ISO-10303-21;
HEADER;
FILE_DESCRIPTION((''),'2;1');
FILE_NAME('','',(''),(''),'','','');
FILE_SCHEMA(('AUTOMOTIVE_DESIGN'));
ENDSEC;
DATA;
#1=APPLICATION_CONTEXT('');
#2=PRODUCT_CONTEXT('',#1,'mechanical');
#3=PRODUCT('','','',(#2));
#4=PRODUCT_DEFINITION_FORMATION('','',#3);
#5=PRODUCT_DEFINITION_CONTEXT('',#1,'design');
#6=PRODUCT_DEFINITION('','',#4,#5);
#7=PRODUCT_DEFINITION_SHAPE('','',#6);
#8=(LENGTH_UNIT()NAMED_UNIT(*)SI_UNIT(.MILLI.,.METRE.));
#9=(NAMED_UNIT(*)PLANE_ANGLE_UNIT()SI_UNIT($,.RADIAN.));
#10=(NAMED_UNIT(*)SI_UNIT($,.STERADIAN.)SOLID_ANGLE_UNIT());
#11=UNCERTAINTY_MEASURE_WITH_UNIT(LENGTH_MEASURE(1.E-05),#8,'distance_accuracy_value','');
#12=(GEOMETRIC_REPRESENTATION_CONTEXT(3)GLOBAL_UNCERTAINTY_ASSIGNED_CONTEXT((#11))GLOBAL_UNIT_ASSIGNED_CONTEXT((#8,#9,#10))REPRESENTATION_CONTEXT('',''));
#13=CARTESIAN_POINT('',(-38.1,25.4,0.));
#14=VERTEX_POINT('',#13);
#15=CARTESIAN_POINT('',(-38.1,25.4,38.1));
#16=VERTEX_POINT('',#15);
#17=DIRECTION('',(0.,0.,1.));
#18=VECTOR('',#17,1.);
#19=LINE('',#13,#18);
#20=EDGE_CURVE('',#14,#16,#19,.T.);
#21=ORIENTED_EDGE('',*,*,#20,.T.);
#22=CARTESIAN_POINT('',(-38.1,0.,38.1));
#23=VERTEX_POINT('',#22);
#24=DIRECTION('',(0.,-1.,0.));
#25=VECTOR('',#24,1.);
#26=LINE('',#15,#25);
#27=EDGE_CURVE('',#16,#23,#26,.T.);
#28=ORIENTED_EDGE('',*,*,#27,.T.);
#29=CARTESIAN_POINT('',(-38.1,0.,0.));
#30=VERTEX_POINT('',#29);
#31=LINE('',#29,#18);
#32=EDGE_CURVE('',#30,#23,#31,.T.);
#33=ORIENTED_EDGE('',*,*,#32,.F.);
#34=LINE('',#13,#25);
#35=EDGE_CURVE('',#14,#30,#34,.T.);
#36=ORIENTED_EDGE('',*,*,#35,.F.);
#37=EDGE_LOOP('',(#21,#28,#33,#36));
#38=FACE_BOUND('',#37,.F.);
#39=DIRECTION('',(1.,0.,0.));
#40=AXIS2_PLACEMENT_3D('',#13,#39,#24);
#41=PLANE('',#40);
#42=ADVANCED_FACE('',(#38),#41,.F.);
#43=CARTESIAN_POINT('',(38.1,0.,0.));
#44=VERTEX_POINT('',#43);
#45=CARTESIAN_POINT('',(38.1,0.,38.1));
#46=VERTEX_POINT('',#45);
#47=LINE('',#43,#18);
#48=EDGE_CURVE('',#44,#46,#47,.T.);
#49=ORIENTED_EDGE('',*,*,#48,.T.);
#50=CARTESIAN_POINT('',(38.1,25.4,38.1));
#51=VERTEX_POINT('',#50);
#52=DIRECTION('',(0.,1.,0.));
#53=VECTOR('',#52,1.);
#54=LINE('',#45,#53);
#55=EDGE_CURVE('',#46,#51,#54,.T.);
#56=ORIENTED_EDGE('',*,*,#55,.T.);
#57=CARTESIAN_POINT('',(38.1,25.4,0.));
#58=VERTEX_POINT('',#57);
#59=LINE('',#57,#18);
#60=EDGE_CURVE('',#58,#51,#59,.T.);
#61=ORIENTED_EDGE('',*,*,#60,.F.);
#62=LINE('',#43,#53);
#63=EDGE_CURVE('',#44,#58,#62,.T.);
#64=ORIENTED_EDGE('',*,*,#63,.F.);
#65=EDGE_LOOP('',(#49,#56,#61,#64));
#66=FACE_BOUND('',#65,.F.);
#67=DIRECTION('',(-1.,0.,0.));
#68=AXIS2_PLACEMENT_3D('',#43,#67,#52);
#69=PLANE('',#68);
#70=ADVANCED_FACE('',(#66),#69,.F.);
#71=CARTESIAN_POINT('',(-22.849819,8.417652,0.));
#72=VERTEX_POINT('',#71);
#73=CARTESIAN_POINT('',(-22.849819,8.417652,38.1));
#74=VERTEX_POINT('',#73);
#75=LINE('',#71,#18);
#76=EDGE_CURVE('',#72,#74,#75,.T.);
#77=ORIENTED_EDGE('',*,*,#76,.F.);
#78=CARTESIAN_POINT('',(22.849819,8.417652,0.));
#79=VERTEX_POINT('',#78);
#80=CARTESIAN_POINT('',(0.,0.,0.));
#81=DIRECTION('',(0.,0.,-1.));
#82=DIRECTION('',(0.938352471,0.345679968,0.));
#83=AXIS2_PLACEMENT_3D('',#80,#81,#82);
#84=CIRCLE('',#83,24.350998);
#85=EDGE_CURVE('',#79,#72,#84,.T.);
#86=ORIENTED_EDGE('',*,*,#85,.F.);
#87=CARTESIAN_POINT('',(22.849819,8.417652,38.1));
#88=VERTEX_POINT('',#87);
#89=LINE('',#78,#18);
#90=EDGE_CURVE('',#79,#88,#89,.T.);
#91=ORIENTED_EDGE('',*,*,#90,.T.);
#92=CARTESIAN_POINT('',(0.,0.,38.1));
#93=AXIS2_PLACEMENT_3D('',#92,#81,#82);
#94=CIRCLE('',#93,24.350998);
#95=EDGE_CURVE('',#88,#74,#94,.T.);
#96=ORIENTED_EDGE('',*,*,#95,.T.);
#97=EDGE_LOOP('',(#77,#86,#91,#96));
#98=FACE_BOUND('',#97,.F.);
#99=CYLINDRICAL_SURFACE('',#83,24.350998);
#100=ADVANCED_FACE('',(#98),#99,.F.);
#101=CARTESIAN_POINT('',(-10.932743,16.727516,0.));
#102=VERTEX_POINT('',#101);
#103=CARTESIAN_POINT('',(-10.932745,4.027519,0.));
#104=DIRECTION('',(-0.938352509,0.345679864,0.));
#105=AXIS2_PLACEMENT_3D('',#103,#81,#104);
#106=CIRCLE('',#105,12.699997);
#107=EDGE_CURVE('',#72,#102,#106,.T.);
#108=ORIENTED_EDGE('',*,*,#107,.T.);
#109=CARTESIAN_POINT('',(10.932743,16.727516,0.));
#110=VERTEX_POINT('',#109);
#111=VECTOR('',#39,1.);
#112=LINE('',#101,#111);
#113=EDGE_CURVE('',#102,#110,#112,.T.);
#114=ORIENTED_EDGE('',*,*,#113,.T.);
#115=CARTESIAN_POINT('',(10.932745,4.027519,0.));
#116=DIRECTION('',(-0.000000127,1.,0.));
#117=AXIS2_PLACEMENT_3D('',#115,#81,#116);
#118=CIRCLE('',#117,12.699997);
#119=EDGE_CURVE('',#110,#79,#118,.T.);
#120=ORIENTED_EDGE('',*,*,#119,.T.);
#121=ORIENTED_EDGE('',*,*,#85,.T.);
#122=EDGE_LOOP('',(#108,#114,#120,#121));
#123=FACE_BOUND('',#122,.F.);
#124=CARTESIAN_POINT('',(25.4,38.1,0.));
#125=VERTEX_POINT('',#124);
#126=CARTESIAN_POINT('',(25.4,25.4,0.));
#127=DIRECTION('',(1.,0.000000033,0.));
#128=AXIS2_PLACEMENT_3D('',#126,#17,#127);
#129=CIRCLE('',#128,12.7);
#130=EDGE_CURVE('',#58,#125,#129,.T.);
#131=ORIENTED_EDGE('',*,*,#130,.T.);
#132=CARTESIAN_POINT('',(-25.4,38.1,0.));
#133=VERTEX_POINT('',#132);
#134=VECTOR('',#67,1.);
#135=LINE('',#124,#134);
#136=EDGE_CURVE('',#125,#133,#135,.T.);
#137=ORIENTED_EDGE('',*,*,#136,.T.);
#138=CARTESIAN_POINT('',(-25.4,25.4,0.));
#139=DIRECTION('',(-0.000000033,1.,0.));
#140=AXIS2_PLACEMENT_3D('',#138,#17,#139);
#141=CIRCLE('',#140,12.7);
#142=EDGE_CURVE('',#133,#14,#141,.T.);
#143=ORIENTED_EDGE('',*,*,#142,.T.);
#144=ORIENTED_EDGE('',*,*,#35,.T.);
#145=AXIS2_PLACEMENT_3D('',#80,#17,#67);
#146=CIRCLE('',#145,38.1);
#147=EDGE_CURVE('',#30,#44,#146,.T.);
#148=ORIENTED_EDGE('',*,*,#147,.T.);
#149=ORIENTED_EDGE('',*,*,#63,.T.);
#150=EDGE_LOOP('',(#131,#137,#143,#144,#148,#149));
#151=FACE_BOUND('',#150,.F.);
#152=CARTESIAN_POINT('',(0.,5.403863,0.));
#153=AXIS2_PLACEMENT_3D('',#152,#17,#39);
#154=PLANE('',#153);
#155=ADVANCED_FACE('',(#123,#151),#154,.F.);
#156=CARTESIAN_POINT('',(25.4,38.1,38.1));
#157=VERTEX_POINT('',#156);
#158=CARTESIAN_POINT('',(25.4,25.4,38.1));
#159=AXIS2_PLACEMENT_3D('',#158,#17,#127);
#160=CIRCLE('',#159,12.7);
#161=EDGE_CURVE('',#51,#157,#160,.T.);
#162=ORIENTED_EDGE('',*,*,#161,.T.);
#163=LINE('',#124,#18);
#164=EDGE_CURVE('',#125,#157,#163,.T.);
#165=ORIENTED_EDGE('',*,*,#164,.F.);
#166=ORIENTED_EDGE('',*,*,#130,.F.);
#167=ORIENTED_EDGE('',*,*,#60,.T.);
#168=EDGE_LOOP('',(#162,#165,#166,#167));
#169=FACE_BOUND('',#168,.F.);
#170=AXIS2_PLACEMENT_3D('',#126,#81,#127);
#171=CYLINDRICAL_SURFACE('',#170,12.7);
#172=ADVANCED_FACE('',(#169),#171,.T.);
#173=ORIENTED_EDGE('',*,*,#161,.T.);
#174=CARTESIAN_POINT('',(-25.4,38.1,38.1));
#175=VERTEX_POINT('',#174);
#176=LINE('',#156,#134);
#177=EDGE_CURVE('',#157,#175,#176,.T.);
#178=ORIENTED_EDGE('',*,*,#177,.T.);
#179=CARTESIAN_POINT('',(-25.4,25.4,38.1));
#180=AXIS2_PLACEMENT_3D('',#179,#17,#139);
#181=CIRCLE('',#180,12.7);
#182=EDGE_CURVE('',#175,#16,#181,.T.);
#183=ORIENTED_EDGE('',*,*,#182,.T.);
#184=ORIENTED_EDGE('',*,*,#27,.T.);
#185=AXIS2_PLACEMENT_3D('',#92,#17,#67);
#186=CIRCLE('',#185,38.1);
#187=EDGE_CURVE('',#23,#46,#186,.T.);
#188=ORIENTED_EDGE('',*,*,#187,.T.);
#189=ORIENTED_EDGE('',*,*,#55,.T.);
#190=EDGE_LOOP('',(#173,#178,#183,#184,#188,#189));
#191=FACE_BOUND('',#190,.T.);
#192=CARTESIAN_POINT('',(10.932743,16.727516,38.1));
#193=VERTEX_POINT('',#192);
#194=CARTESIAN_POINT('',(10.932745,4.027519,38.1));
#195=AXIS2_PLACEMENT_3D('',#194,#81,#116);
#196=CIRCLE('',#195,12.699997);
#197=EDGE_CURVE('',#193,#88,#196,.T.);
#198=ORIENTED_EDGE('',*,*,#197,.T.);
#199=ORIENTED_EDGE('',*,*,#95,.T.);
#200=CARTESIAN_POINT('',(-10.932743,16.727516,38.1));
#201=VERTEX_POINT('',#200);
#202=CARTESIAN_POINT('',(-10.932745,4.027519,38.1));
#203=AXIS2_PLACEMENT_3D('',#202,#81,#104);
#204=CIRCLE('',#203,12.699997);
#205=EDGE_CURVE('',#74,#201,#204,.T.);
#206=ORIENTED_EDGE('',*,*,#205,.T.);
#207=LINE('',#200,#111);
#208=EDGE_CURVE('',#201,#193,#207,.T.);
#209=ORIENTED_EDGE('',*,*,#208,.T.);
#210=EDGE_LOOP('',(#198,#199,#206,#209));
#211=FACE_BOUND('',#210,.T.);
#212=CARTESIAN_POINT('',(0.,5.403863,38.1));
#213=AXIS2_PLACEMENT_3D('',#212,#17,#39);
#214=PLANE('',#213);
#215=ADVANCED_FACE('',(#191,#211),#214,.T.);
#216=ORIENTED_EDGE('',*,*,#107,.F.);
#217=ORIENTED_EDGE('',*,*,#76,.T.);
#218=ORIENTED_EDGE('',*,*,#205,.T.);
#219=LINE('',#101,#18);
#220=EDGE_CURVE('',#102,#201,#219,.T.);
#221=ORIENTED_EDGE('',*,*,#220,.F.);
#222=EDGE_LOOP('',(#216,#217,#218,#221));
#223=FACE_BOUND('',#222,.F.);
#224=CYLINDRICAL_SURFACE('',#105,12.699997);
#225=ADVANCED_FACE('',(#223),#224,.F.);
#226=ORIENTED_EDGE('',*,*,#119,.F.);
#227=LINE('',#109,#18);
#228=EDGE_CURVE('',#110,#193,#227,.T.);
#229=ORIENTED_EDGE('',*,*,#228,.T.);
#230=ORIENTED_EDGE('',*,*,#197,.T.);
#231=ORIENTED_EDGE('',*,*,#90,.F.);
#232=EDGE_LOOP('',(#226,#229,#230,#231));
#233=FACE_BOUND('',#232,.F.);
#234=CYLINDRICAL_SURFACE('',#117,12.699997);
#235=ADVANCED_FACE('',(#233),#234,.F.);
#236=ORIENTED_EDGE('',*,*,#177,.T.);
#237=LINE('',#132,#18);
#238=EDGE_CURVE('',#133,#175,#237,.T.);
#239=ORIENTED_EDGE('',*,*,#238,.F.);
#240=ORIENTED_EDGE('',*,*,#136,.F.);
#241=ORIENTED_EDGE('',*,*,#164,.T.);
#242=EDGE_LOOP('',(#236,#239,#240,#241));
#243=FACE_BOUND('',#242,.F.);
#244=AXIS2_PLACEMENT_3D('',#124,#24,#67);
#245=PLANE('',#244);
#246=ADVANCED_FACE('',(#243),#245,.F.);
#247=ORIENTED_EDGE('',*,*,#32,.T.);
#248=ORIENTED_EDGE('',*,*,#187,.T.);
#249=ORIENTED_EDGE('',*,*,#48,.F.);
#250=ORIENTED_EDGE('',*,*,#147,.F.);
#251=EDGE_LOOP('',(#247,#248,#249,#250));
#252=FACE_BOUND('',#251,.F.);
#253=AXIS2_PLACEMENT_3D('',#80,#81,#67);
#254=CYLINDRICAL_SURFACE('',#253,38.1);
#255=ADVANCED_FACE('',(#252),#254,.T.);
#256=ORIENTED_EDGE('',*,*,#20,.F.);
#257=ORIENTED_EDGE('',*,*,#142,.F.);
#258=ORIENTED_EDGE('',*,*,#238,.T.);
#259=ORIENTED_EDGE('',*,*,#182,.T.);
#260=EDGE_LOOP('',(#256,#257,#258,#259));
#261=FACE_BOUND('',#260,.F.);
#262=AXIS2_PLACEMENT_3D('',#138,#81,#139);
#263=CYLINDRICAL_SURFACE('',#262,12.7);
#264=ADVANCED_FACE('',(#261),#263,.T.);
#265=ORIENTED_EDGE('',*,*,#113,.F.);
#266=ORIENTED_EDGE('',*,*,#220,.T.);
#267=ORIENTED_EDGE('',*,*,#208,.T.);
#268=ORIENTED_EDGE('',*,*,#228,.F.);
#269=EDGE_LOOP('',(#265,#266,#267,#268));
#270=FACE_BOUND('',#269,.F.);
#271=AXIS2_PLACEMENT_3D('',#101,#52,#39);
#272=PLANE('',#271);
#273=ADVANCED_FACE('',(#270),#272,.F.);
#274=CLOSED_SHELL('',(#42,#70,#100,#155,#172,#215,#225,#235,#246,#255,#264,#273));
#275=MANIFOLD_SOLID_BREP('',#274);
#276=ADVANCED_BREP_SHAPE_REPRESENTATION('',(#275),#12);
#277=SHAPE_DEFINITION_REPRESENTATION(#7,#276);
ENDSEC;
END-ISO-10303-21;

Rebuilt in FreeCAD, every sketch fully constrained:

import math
import FreeCAD as App
import Part
import Sketcher
Q = App.Units.Quantity

doc = App.newDocument("Part")
body = doc.addObject("PartDesign::Body", "Body")

sketch1 = doc.addObject("Sketcher::SketchObject", "Sketch")
body.addObject(sketch1)
sketch1.AttachmentSupport = (doc.XY_Plane, [""])
sketch1.MapMode = "FlatFace"
sketch1.addGeometry(Part.LineSegment(App.Vector(-38, 25, 0), App.Vector(-38, 0, 0)), False)
sketch1.addGeometry(Part.ArcOfCircle(Part.Circle(App.Vector(0, 0, 0), App.Vector(0, 0, 1), 38), math.radians(180), math.radians(360)), False)
sketch1.addGeometry(Part.LineSegment(App.Vector(38, 0, 0), App.Vector(38, 25, 0)), False)
sketch1.addGeometry(Part.ArcOfCircle(Part.Circle(App.Vector(25, 25, 0), App.Vector(0, 0, 1), 13), math.radians(0), math.radians(90)), False)
sketch1.addGeometry(Part.LineSegment(App.Vector(25, 38, 0), App.Vector(-25, 38, 0)), False)
sketch1.addGeometry(Part.ArcOfCircle(Part.Circle(App.Vector(-25, 25, 0), App.Vector(0, 0, 1), 13), math.radians(90), math.radians(180)), False)
sketch1.addGeometry(Part.ArcOfCircle(Part.Circle(App.Vector(11, 4, 0), App.Vector(0, 0, 1), 13), math.radians(20), math.radians(90)), False)
sketch1.addGeometry(Part.ArcOfCircle(Part.Circle(App.Vector(0, 0, 0), App.Vector(0, 0, 1), 24), math.radians(160), math.radians(380)), False)
sketch1.addGeometry(Part.ArcOfCircle(Part.Circle(App.Vector(-11, 4, 0), App.Vector(0, 0, 1), 13), math.radians(90), math.radians(160)), False)
sketch1.addGeometry(Part.LineSegment(App.Vector(-11, 17, 0), App.Vector(11, 17, 0)), False)
sketch1.addConstraint(Sketcher.Constraint("Tangent", 0, 2, 1, 1))
sketch1.addConstraint(Sketcher.Constraint("Tangent", 1, 2, 2, 1))
sketch1.addConstraint(Sketcher.Constraint("Tangent", 2, 2, 3, 1))
sketch1.addConstraint(Sketcher.Constraint("Tangent", 3, 2, 4, 1))
sketch1.addConstraint(Sketcher.Constraint("Tangent", 4, 2, 5, 1))
sketch1.addConstraint(Sketcher.Constraint("Tangent", 5, 2, 0, 1))
sketch1.addConstraint(Sketcher.Constraint("Tangent", 6, 1, 7, 2))
sketch1.addConstraint(Sketcher.Constraint("Tangent", 7, 1, 8, 2))
sketch1.addConstraint(Sketcher.Constraint("Tangent", 8, 1, 9, 1))
sketch1.addConstraint(Sketcher.Constraint("Tangent", 9, 2, 6, 2))
sketch1.addConstraint(Sketcher.Constraint("Vertical", 0))
sketch1.addConstraint(Sketcher.Constraint("Vertical", 2))
sketch1.addConstraint(Sketcher.Constraint("Horizontal", 4))
sketch1.addConstraint(Sketcher.Constraint("Horizontal", 9))
sketch1.addConstraint(Sketcher.Constraint("Coincident", 1, 3, -1, 1))
sketch1.addConstraint(Sketcher.Constraint("Coincident", 7, 3, -1, 1))
sketch1.addConstraint(Sketcher.Constraint("Equal", 3, 5))
sketch1.addConstraint(Sketcher.Constraint("Equal", 6, 8))
sketch1.addConstraint(Sketcher.Constraint("Radius", 1, Q("1.5 in")))
sketch1.addConstraint(Sketcher.Constraint("Radius", 3, Q("0.5 in")))
sketch1.addConstraint(Sketcher.Constraint("Radius", 6, Q("0.4999999 in")))
sketch1.addConstraint(Sketcher.Constraint("DistanceY", 0, 2, 0, 1, Q("1 in")))
sketch1.addConstraint(Sketcher.Constraint("Radius", 7, 24.350998))
sketch1.addConstraint(Sketcher.Constraint("DistanceX", 9, 1, 9, 2, 21.865486))
pad1 = doc.addObject("PartDesign::Pad", "Pad")
body.addObject(pad1)
pad1.Profile = sketch1
pad1.Length = Q("1.5 in")

doc.recompute()
